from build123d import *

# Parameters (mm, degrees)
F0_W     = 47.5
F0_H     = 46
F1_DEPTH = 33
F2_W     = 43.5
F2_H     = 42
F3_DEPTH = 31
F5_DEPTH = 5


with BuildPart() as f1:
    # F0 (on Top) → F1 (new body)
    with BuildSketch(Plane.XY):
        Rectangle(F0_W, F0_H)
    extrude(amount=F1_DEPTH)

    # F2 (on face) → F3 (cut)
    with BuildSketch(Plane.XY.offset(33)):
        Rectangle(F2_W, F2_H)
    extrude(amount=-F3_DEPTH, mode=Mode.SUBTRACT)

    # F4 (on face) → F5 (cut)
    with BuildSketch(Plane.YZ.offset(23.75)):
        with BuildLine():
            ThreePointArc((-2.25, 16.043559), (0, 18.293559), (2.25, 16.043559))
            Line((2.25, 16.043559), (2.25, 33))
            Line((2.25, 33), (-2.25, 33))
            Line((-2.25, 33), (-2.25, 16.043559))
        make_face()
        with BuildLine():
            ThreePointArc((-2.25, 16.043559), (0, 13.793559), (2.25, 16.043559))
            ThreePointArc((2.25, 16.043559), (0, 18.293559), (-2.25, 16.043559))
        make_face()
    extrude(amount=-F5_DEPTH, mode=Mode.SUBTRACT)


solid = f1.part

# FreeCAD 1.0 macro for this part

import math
import FreeCAD as App
import Part
import Sketcher

V = App.Vector
Q = App.Units.Quantity

doc = App.newDocument("Part")
body = doc.addObject("PartDesign::Body", "Body")

# Sketch on XY plane
sketch1 = body.newObject("Sketcher::SketchObject", "Sketch")
sketch1.AttachmentSupport = (doc.getObject("XY_Plane"), [""])
sketch1.MapMode = "FlatFace"
sketch1.addGeometry(Part.LineSegment(V(-23.75, 23, 0), V(-23.75, -23, 0)), False)
sketch1.addGeometry(Part.LineSegment(V(-23.75, -23, 0), V(23.75, -23, 0)), False)
sketch1.addGeometry(Part.LineSegment(V(23.75, -23, 0), V(23.75, 23, 0)), False)
sketch1.addGeometry(Part.LineSegment(V(23.75, 23, 0), V(-23.75, 23, 0)), False)
sketch1.addConstraint(Sketcher.Constraint("Coincident", 0, 2, 1, 1))
sketch1.addConstraint(Sketcher.Constraint("Coincident", 1, 2, 2, 1))
sketch1.addConstraint(Sketcher.Constraint("Coincident", 2, 2, 3, 1))
sketch1.addConstraint(Sketcher.Constraint("Coincident", 3, 2, 0, 1))
sketch1.addConstraint(Sketcher.Constraint("Vertical", 0))
sketch1.addConstraint(Sketcher.Constraint("Horizontal", 1))
sketch1.addConstraint(Sketcher.Constraint("Vertical", 2))
sketch1.addConstraint(Sketcher.Constraint("Horizontal", 3))
sketch1.addConstraint(Sketcher.Constraint("Symmetric", 0, 2, 2, 2, -1, 1))
sketch1.addConstraint(Sketcher.Constraint("DistanceY", 0, 2, 0, 1, Q("46 mm")))
sketch1.addConstraint(Sketcher.Constraint("DistanceX", 1, 1, 1, 2, Q("47.5 mm")))
pad1 = body.newObject("PartDesign::Pad", "Pad")
pad1.Profile = sketch1
pad1.Length = 33

# Sketch on XY plane
sketch2 = body.newObject("Sketcher::SketchObject", "Sketch001")
sketch2.AttachmentSupport = (doc.getObject("XY_Plane"), [""])
sketch2.MapMode = "FlatFace"
sketch2.AttachmentOffset = App.Placement(V(0, 0, 33), App.Rotation())
sketch2.addGeometry(Part.LineSegment(V(-21.75, 21, 0), V(-21.75, -21, 0)), False)
sketch2.addGeometry(Part.LineSegment(V(-21.75, -21, 0), V(21.75, -21, 0)), False)
sketch2.addGeometry(Part.LineSegment(V(21.75, -21, 0), V(21.75, 21, 0)), False)
sketch2.addGeometry(Part.LineSegment(V(21.75, 21, 0), V(-21.75, 21, 0)), False)
sketch2.addConstraint(Sketcher.Constraint("Coincident", 0, 2, 1, 1))
sketch2.addConstraint(Sketcher.Constraint("Coincident", 1, 2, 2, 1))
sketch2.addConstraint(Sketcher.Constraint("Coincident", 2, 2, 3, 1))
sketch2.addConstraint(Sketcher.Constraint("Coincident", 3, 2, 0, 1))
sketch2.addConstraint(Sketcher.Constraint("Vertical", 0))
sketch2.addConstraint(Sketcher.Constraint("Horizontal", 1))
sketch2.addConstraint(Sketcher.Constraint("Vertical", 2))
sketch2.addConstraint(Sketcher.Constraint("Horizontal", 3))
sketch2.addConstraint(Sketcher.Constraint("Symmetric", 0, 2, 2, 2, -1, 1))
sketch2.addConstraint(Sketcher.Constraint("DistanceY", 0, 2, 0, 1, Q("42 mm")))
sketch2.addConstraint(Sketcher.Constraint("DistanceX", 1, 1, 1, 2, Q("43.5 mm")))
pocket1 = body.newObject("PartDesign::Pocket", "Pocket")
pocket1.Profile = sketch2
pocket1.Length = 31

# Sketch on YZ plane
sketch3 = body.newObject("Sketcher::SketchObject", "Sketch002")
sketch3.AttachmentSupport = (doc.getObject("YZ_Plane"), [""])
sketch3.MapMode = "FlatFace"
sketch3.AttachmentOffset = App.Placement(V(0, 0, 23.75), App.Rotation())
sketch3.addGeometry(Part.LineSegment(V(2.25, 16.043559, 0), V(2.25, 33, 0)), False)
sketch3.addGeometry(Part.LineSegment(V(2.25, 33, 0), V(-2.25, 33, 0)), False)
sketch3.addGeometry(Part.LineSegment(V(-2.25, 33, 0), V(-2.25, 16.043559, 0)), False)
sketch3.addGeometry(Part.ArcOfCircle(Part.Circle(V(0, 16.043559, 0), V(0, 0, 1), 2.25), math.radians(180), math.radians(360)), False)
sketch3.addConstraint(Sketcher.Constraint("Coincident", 0, 2, 1, 1))
sketch3.addConstraint(Sketcher.Constraint("Coincident", 1, 2, 2, 1))
sketch3.addConstraint(Sketcher.Constraint("Tangent", 2, 2, 3, 1))
sketch3.addConstraint(Sketcher.Constraint("Tangent", 3, 2, 0, 1))
sketch3.addConstraint(Sketcher.Constraint("Vertical", 0))
sketch3.addConstraint(Sketcher.Constraint("Horizontal", 1))
sketch3.addConstraint(Sketcher.Constraint("Vertical", 2))
sketch3.addConstraint(Sketcher.Constraint("PointOnObject", 3, 3, -2))
sketch3.addConstraint(Sketcher.Constraint("Radius", 3, Q("2.25 mm")))
sketch3.addConstraint(Sketcher.Constraint("DistanceY", -1, 1, 0, 2, Q("33 mm")))
sketch3.addConstraint(Sketcher.Constraint("DistanceY", 0, 1, 0, 2, Q("16.956441 mm")))
pocket2 = body.newObject("PartDesign::Pocket", "Pocket001")
pocket2.Profile = sketch3
pocket2.Length = 5

doc.recompute()
